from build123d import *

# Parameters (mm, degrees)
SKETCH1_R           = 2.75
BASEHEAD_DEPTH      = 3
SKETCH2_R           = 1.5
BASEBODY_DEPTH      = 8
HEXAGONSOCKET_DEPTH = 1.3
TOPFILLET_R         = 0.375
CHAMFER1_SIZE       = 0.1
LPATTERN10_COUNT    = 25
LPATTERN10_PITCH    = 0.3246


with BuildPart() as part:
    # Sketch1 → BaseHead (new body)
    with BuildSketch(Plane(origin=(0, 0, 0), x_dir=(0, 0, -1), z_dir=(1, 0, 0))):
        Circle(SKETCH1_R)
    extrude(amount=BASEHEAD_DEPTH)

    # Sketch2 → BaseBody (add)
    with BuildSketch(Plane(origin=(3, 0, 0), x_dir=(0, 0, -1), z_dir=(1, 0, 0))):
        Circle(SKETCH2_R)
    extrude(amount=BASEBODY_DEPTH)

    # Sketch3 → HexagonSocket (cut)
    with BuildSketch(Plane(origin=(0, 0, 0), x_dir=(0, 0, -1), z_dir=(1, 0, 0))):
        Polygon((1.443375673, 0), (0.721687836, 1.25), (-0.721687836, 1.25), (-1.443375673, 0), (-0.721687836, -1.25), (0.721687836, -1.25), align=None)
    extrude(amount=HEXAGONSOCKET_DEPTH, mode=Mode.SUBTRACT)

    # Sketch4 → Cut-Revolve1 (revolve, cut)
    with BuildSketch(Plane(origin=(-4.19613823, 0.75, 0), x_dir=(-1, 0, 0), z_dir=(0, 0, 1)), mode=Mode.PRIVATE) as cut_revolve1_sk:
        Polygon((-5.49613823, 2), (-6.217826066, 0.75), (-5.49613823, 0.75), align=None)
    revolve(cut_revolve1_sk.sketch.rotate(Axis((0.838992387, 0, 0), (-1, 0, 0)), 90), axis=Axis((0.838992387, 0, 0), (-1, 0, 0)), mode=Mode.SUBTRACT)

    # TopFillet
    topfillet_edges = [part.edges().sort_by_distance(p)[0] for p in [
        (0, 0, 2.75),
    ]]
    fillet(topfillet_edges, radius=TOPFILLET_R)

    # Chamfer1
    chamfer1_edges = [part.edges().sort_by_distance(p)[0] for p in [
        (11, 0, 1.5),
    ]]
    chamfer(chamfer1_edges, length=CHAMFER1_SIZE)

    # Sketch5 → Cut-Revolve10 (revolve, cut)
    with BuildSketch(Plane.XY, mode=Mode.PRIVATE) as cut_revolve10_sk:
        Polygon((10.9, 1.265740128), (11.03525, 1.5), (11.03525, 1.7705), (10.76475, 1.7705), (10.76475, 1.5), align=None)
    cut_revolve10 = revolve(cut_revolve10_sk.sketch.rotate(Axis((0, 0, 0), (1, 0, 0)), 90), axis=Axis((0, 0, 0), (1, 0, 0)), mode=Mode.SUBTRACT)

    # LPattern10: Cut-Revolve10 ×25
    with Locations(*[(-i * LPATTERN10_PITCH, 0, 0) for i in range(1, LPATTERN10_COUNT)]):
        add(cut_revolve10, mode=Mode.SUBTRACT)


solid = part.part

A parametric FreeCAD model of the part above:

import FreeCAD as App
import Part
import Sketcher

V = App.Vector
Q = App.Units.Quantity


def edges_at(feature, points):
    """Names of the edges that pass closest to the given points."""
    edges = feature.Shape.Edges
    near = lambda p: min(range(len(edges)), key=lambda i: edges[i].distToShape(Part.Vertex(*p))[0])
    return sorted({f"Edge{near(p) + 1}" for p in points})


def add_polygon(sketch, points):
    """Adds a closed chain of lines whose ends are joined by coincident constraints."""
    first, n = sketch.GeometryCount, len(points)
    for a, b in zip(points, points[1:] + points[:1]):
        sketch.addGeometry(Part.LineSegment(App.Vector(*a, 0), App.Vector(*b, 0)), False)
    for i in range(n):
        sketch.addConstraint(Sketcher.Constraint("Coincident", first + i, 2, first + (i + 1) % n, 1))

doc = App.newDocument("Part")
body = doc.addObject("PartDesign::Body", "Body")

# Sketch on YZ plane
sketch1 = doc.addObject("Sketcher::SketchObject", "Sketch")
body.addObject(sketch1)
sketch1.AttachmentSupport = (doc.YZ_Plane, [""])
sketch1.MapMode = "FlatFace"
sketch1.addGeometry(Part.Circle(V(0, 0, 0), V(0, 0, 1), 2.8), False)
sketch1.addConstraint([
    Sketcher.Constraint("Coincident", 0, 3, -1, 1),
    Sketcher.Constraint("Diameter", 0, 5.5),
])
pad1 = doc.addObject("PartDesign::Pad", "Pad")
body.addObject(pad1)
pad1.Profile = sketch1
pad1.Length = 3

# Sketch on YZ plane
sketch2 = doc.addObject("Sketcher::SketchObject", "Sketch001")
body.addObject(sketch2)
sketch2.AttachmentSupport = (doc.YZ_Plane, [""])
sketch2.MapMode = "FlatFace"
sketch2.AttachmentOffset = App.Placement(V(0, 0, 3), App.Rotation())
sketch2.addGeometry(Part.Circle(V(0, 0, 0), V(0, 0, 1), 1.5), False)
sketch2.addConstraint([
    Sketcher.Constraint("Coincident", 0, 3, -1, 1),
    Sketcher.Constraint("Diameter", 0, 3.0),
])
pad2 = doc.addObject("PartDesign::Pad", "Pad001")
body.addObject(pad2)
pad2.Profile = sketch2
pad2.Length = 8

# Sketch on YZ plane
sketch3 = doc.addObject("Sketcher::SketchObject", "Sketch002")
body.addObject(sketch3)
sketch3.AttachmentSupport = (doc.YZ_Plane, [""])
sketch3.MapMode = "FlatFace"
add_polygon(sketch3, [(0, -1.4), (1.2, -0.7), (1.2, 0.7), (0, 1.4), (-1.2, 0.7), (-1.2, -0.7)])  # lines 0-5
sketch3.addConstraint([
    Sketcher.Constraint("Vertical", 1),
    Sketcher.Constraint("Vertical", 4),
    Sketcher.Constraint("Symmetric", 0, 2, 3, 2, -1, 1),
    Sketcher.Constraint("Symmetric", 2, 2, 5, 2, -1, 1),
    Sketcher.Constraint("PointOnObject", 2, 2, -2),
    Sketcher.Constraint("Parallel", 2, 5),
    Sketcher.Constraint("Horizontal", 1, 2, 3, 2),
    Sketcher.Constraint("Angle", 0, Q("30 deg")),
    Sketcher.Constraint("DistanceX", 3, 2, 1, 2, 2.5),
    Sketcher.Constraint("DistanceY", 1, 1, 1, 2, 1.443376),
])
pocket1 = doc.addObject("PartDesign::Pocket", "Pocket")
body.addObject(pocket1)
pocket1.Profile = sketch3
pocket1.Length = 1.3
pocket1.Reversed = True

# Sketch on XY plane
sketch4 = doc.addObject("Sketcher::SketchObject", "Sketch003")
body.addObject(sketch4)
sketch4.AttachmentSupport = (doc.XY_Plane, [""])
sketch4.MapMode = "FlatFace"
add_polygon(sketch4, [(1.3, -1.2), (2, 0), (1.3, 0)])  # lines 0-2
sketch4.addConstraint([
    Sketcher.Constraint("Horizontal", 1),
    Sketcher.Constraint("Vertical", 2),
    Sketcher.Constraint("PointOnObject", 0, 2, -1),
    Sketcher.Constraint("Angle", 0, Q("60 deg")),
    Sketcher.Constraint("DistanceY", 2, 2, 2, 1, 1.25),
    Sketcher.Constraint("DistanceX", -1, 1, 1, 2, 1.3),
])
groove = doc.addObject("PartDesign::Groove", "Groove")
body.addObject(groove)
groove.Profile = sketch4
groove.ReferenceAxis = (sketch4, ["H_Axis"])
groove.Angle = 360
doc.recompute()

fillet = doc.addObject("PartDesign::Fillet", "Fillet")
body.addObject(fillet)
fillet.Base = (groove, edges_at(groove, [(0, 0, 2.75)]))
fillet.Radius = 0.375
doc.recompute()

chamfer = doc.addObject("PartDesign::Chamfer", "Chamfer")
body.addObject(chamfer)
chamfer.Base = (fillet, edges_at(fillet, [(11, 0, 1.5)]))
chamfer.Size = 0.1

# Sketch on XY plane
sketch5 = doc.addObject("Sketcher::SketchObject", "Sketch004")
body.addObject(sketch5)
sketch5.AttachmentSupport = (doc.XY_Plane, [""])
sketch5.MapMode = "FlatFace"
add_polygon(sketch5, [(10.9, 1.27), (11.04, 1.5), (11.04, 1.77), (10.76, 1.77), (10.76, 1.5)])  # lines 0-4
sketch5.addConstraint([
    Sketcher.Constraint("Vertical", 1),
    Sketcher.Constraint("Horizontal", 2),
    Sketcher.Constraint("Vertical", 3),
    Sketcher.Constraint("Horizontal", 0, 2, 3, 2),
    Sketcher.Constraint("Equal", 2, 1),
    Sketcher.Constraint("Equal", 0, 4),
    Sketcher.Constraint("Angle", 0, Q("60 deg")),
    Sketcher.Constraint("DistanceY", -1, 1, 0, 2, 1.5),
    Sketcher.Constraint("DistanceX", -1, 1, 4, 2, 10.9),
    Sketcher.Constraint("DistanceX", 2, 2, 2, 1, 0.2705),
])
groove2 = doc.addObject("PartDesign::Groove", "Groove001")
body.addObject(groove2)
groove2.Profile = sketch5
groove2.ReferenceAxis = (sketch5, ["H_Axis"])
groove2.Angle = 360
doc.recompute()

linearpattern = doc.addObject("PartDesign::LinearPattern", "LinearPattern")
body.addObject(linearpattern)
linearpattern.Originals = [groove2]
linearpattern.Direction = (doc.X_Axis, [""])
linearpattern.Mode = "offset"
linearpattern.Offset = 0.3246
linearpattern.Occurrences = 25
linearpattern.Reversed = True
body.Tip = linearpattern

doc.recompute()
